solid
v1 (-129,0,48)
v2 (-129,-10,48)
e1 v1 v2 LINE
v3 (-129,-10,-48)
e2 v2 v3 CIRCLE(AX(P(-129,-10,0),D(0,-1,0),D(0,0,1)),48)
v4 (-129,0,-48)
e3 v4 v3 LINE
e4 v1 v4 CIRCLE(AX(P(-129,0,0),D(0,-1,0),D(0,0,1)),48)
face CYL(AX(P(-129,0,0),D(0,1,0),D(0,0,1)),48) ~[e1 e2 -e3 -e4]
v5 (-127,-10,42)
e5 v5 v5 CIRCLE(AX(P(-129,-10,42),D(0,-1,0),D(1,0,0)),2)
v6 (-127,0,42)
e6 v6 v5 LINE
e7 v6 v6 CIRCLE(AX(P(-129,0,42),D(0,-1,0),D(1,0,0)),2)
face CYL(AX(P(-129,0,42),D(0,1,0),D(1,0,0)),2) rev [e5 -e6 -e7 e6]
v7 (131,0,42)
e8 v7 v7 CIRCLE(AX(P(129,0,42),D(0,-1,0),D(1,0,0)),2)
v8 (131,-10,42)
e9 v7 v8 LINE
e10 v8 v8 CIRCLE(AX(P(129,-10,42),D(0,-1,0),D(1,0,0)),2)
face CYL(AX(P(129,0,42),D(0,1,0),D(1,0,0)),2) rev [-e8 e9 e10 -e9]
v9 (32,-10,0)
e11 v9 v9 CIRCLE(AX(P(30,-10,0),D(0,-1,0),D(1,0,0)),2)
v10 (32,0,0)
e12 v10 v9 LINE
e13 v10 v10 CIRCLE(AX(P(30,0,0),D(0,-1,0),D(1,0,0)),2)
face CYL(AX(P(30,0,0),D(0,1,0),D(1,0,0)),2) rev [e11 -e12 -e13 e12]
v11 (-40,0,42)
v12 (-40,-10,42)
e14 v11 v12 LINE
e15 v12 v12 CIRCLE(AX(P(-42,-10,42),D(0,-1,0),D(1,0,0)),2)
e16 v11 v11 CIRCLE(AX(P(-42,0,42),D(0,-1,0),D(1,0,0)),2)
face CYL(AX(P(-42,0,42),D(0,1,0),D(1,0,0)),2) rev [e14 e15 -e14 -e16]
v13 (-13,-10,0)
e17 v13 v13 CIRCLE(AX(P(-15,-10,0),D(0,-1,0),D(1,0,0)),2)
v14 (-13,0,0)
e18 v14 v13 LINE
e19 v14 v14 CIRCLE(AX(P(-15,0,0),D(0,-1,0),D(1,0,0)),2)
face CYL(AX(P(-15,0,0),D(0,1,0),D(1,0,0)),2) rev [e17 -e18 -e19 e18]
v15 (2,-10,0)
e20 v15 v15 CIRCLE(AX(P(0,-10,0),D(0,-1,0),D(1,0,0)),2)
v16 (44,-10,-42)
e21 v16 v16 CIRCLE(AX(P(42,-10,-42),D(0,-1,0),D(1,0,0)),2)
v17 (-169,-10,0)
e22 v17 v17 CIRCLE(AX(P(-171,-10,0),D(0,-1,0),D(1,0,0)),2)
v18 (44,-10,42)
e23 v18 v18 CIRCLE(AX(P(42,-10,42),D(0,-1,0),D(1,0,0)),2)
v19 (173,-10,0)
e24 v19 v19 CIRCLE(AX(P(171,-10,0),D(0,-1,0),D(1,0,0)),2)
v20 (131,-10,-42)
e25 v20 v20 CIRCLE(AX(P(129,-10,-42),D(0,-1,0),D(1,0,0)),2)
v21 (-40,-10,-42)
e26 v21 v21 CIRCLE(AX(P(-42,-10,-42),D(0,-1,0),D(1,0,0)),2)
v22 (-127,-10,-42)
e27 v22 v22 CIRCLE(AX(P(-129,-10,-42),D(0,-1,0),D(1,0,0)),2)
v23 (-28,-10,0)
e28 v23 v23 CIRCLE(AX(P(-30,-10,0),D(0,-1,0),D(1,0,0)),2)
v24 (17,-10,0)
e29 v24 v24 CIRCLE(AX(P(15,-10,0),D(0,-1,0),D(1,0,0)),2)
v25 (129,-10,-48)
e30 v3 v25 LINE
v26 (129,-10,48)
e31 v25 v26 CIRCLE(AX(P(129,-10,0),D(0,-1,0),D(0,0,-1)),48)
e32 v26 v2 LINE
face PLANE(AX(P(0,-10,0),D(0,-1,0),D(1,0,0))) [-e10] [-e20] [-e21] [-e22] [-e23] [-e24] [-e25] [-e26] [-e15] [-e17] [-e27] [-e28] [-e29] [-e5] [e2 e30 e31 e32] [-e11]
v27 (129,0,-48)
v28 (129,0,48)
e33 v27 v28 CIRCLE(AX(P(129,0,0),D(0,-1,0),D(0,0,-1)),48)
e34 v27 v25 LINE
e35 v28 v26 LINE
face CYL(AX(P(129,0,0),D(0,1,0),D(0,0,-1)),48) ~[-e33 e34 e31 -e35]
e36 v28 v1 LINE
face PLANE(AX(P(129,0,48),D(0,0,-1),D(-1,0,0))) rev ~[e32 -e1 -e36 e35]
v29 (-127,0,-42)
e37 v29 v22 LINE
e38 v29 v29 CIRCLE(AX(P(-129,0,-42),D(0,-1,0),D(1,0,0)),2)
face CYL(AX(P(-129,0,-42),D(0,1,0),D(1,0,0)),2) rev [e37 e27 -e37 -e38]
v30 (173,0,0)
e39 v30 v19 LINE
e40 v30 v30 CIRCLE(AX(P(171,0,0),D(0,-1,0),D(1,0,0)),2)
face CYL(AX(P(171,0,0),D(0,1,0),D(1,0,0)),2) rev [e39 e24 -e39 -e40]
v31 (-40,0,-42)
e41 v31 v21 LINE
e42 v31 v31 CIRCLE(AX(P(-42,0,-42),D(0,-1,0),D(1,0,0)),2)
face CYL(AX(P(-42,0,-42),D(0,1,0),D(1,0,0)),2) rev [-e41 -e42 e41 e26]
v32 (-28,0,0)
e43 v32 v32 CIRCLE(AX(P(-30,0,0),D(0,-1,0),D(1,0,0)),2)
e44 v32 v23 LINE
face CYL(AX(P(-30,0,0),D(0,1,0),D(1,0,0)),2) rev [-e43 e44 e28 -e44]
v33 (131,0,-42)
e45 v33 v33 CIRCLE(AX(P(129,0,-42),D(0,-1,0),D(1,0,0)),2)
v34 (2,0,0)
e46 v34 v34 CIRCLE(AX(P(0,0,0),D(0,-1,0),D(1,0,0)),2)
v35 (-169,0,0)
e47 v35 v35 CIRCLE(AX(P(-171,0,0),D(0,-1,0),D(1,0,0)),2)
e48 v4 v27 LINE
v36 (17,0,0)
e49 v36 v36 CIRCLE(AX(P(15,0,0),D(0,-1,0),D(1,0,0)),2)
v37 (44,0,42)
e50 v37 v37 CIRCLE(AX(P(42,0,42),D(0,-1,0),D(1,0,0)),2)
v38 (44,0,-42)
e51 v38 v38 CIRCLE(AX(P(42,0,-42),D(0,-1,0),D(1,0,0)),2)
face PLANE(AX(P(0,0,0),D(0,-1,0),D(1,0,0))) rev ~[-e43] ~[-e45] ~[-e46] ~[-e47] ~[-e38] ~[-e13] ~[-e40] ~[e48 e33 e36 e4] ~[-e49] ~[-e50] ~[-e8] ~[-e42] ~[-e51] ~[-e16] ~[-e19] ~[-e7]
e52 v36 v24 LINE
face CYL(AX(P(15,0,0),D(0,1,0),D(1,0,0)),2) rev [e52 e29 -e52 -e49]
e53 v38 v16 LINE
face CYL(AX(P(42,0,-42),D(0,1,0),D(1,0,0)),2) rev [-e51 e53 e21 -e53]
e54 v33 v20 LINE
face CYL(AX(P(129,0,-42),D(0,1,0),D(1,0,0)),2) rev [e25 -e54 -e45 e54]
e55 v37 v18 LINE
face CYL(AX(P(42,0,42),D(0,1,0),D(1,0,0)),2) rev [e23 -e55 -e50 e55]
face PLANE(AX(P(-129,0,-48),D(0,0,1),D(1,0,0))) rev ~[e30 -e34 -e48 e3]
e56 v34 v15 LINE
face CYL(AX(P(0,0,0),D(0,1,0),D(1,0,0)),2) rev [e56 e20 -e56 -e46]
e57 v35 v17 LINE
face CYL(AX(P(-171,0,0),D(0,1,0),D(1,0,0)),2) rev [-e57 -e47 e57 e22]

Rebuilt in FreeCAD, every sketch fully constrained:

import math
import FreeCAD as App
import Part
import Sketcher
from FreeCAD import Vector
Q = App.Units.Quantity

doc = App.newDocument("Part")
body = doc.addObject("PartDesign::Body", "Body")

# Sketch on XZ plane
sketch1 = body.newObject("Sketcher::SketchObject", "Sketch")
sketch1.AttachmentSupport = (doc.getObject("XZ_Plane"), [""])
sketch1.MapMode = "FlatFace"
sketch1.addGeometry([
    Part.ArcOfCircle(Part.Circle(Vector(129, 0, 0), Vector(0, 0, 1), 48), math.radians(-90), math.radians(90)),  # 0
    Part.LineSegment(Vector(129, 48, 0), Vector(-129, 48, 0)),  # 1
    Part.ArcOfCircle(Part.Circle(Vector(-129, 0, 0), Vector(0, 0, 1), 48), math.radians(90), math.radians(270)),  # 2
    Part.LineSegment(Vector(-129, -48, 0), Vector(129, -48, 0)),  # 3
    Part.Circle(Vector(-129, -42, 0), Vector(0, 0, 1), 2),  # 4
    Part.Circle(Vector(-42, -42, 0), Vector(0, 0, 1), 2),  # 5
    Part.Circle(Vector(42, -42, 0), Vector(0, 0, 1), 2),  # 6
    Part.Circle(Vector(129, -42, 0), Vector(0, 0, 1), 2),  # 7
    Part.Circle(Vector(-171, 0, 0), Vector(0, 0, 1), 2),  # 8
    Part.Circle(Vector(-30, 0, 0), Vector(0, 0, 1), 2),  # 9
    Part.Circle(Vector(-15, 0, 0), Vector(0, 0, 1), 2),  # 10
    Part.Circle(Vector(-129, 42, 0), Vector(0, 0, 1), 2),  # 11
    Part.Circle(Vector(-42, 42, 0), Vector(0, 0, 1), 2),  # 12
    Part.Circle(Vector(0, 0, 0), Vector(0, 0, 1), 2),  # 13
    Part.Circle(Vector(15, 0, 0), Vector(0, 0, 1), 2),  # 14
    Part.Circle(Vector(30, 0, 0), Vector(0, 0, 1), 2),  # 15
    Part.Circle(Vector(171, 0, 0), Vector(0, 0, 1), 2),  # 16
    Part.Circle(Vector(42, 42, 0), Vector(0, 0, 1), 2),  # 17
    Part.Circle(Vector(129, 42, 0), Vector(0, 0, 1), 2),  # 18
], False)
sketch1.addConstraint([
    Sketcher.Constraint("Tangent", 0, 2, 1, 1),
    Sketcher.Constraint("Tangent", 1, 2, 2, 1),
    Sketcher.Constraint("Tangent", 2, 2, 3, 1),
    Sketcher.Constraint("Tangent", 3, 2, 0, 1),
    Sketcher.Constraint("Horizontal", 1),
    Sketcher.Constraint("Horizontal", 3),
    Sketcher.Constraint("Coincident", 13, 3, -1, 1),
    Sketcher.Constraint("Equal", 4, 5),
    Sketcher.Constraint("Equal", 5, 6),
    Sketcher.Constraint("Equal", 6, 7),
    Sketcher.Constraint("Equal", 7, 8),
    Sketcher.Constraint("Equal", 8, 9),
    Sketcher.Constraint("Equal", 9, 10),
    Sketcher.Constraint("Equal", 10, 11),
    Sketcher.Constraint("Equal", 11, 12),
    Sketcher.Constraint("Equal", 12, 13),
    Sketcher.Constraint("Equal", 13, 14),
    Sketcher.Constraint("Equal", 14, 15),
    Sketcher.Constraint("Equal", 15, 16),
    Sketcher.Constraint("Equal", 16, 17),
    Sketcher.Constraint("Equal", 17, 18),
    Sketcher.Constraint("Symmetric", 0, 3, 2, 3, -1, 1),
    Sketcher.Constraint("Symmetric", 7, 3, 11, 3, -1, 1),
    Sketcher.Constraint("Symmetric", 6, 3, 12, 3, -1, 1),
    Sketcher.Constraint("Symmetric", 10, 3, 14, 3, -1, 1),
    Sketcher.Constraint("Symmetric", 9, 3, 15, 3, -1, 1),
    Sketcher.Constraint("Symmetric", 8, 3, 16, 3, -1, 1),
    Sketcher.Constraint("Symmetric", 5, 3, 17, 3, -1, 1),
    Sketcher.Constraint("Symmetric", 4, 3, 18, 3, -1, 1),
    Sketcher.Constraint("Symmetric", 5, 3, 6, 3, -2),
    Sketcher.Constraint("Symmetric", 4, 3, 7, 3, -2),
    Sketcher.Constraint("PointOnObject", 8, 3, -1),
    Sketcher.Constraint("PointOnObject", 9, 3, -1),
    Sketcher.Constraint("PointOnObject", 10, 3, -1),
    Sketcher.Constraint("Horizontal", 4, 3, 5, 3),
    Sketcher.Constraint("Vertical", 2, 3, 4, 3),
    Sketcher.Constraint("Diameter", 4, Q("4 mm")),
    Sketcher.Constraint("Radius", 0, Q("48 mm")),
    Sketcher.Constraint("DistanceX", 1, 2, 1, 1, Q("258 mm")),
    Sketcher.Constraint("DistanceY", 4, 3, -1, 1, Q("42 mm")),
    Sketcher.Constraint("DistanceX", 5, 3, -1, 1, Q("42 mm")),
    Sketcher.Constraint("DistanceX", 8, 3, -1, 1, Q("171 mm")),
    Sketcher.Constraint("DistanceX", 9, 3, -1, 1, Q("30 mm")),
    Sketcher.Constraint("DistanceX", 10, 3, -1, 1, Q("15 mm")),
])
pad1 = body.newObject("PartDesign::Pad", "Pad")
pad1.Profile = sketch1
pad1.Length = 10

doc.recompute()
